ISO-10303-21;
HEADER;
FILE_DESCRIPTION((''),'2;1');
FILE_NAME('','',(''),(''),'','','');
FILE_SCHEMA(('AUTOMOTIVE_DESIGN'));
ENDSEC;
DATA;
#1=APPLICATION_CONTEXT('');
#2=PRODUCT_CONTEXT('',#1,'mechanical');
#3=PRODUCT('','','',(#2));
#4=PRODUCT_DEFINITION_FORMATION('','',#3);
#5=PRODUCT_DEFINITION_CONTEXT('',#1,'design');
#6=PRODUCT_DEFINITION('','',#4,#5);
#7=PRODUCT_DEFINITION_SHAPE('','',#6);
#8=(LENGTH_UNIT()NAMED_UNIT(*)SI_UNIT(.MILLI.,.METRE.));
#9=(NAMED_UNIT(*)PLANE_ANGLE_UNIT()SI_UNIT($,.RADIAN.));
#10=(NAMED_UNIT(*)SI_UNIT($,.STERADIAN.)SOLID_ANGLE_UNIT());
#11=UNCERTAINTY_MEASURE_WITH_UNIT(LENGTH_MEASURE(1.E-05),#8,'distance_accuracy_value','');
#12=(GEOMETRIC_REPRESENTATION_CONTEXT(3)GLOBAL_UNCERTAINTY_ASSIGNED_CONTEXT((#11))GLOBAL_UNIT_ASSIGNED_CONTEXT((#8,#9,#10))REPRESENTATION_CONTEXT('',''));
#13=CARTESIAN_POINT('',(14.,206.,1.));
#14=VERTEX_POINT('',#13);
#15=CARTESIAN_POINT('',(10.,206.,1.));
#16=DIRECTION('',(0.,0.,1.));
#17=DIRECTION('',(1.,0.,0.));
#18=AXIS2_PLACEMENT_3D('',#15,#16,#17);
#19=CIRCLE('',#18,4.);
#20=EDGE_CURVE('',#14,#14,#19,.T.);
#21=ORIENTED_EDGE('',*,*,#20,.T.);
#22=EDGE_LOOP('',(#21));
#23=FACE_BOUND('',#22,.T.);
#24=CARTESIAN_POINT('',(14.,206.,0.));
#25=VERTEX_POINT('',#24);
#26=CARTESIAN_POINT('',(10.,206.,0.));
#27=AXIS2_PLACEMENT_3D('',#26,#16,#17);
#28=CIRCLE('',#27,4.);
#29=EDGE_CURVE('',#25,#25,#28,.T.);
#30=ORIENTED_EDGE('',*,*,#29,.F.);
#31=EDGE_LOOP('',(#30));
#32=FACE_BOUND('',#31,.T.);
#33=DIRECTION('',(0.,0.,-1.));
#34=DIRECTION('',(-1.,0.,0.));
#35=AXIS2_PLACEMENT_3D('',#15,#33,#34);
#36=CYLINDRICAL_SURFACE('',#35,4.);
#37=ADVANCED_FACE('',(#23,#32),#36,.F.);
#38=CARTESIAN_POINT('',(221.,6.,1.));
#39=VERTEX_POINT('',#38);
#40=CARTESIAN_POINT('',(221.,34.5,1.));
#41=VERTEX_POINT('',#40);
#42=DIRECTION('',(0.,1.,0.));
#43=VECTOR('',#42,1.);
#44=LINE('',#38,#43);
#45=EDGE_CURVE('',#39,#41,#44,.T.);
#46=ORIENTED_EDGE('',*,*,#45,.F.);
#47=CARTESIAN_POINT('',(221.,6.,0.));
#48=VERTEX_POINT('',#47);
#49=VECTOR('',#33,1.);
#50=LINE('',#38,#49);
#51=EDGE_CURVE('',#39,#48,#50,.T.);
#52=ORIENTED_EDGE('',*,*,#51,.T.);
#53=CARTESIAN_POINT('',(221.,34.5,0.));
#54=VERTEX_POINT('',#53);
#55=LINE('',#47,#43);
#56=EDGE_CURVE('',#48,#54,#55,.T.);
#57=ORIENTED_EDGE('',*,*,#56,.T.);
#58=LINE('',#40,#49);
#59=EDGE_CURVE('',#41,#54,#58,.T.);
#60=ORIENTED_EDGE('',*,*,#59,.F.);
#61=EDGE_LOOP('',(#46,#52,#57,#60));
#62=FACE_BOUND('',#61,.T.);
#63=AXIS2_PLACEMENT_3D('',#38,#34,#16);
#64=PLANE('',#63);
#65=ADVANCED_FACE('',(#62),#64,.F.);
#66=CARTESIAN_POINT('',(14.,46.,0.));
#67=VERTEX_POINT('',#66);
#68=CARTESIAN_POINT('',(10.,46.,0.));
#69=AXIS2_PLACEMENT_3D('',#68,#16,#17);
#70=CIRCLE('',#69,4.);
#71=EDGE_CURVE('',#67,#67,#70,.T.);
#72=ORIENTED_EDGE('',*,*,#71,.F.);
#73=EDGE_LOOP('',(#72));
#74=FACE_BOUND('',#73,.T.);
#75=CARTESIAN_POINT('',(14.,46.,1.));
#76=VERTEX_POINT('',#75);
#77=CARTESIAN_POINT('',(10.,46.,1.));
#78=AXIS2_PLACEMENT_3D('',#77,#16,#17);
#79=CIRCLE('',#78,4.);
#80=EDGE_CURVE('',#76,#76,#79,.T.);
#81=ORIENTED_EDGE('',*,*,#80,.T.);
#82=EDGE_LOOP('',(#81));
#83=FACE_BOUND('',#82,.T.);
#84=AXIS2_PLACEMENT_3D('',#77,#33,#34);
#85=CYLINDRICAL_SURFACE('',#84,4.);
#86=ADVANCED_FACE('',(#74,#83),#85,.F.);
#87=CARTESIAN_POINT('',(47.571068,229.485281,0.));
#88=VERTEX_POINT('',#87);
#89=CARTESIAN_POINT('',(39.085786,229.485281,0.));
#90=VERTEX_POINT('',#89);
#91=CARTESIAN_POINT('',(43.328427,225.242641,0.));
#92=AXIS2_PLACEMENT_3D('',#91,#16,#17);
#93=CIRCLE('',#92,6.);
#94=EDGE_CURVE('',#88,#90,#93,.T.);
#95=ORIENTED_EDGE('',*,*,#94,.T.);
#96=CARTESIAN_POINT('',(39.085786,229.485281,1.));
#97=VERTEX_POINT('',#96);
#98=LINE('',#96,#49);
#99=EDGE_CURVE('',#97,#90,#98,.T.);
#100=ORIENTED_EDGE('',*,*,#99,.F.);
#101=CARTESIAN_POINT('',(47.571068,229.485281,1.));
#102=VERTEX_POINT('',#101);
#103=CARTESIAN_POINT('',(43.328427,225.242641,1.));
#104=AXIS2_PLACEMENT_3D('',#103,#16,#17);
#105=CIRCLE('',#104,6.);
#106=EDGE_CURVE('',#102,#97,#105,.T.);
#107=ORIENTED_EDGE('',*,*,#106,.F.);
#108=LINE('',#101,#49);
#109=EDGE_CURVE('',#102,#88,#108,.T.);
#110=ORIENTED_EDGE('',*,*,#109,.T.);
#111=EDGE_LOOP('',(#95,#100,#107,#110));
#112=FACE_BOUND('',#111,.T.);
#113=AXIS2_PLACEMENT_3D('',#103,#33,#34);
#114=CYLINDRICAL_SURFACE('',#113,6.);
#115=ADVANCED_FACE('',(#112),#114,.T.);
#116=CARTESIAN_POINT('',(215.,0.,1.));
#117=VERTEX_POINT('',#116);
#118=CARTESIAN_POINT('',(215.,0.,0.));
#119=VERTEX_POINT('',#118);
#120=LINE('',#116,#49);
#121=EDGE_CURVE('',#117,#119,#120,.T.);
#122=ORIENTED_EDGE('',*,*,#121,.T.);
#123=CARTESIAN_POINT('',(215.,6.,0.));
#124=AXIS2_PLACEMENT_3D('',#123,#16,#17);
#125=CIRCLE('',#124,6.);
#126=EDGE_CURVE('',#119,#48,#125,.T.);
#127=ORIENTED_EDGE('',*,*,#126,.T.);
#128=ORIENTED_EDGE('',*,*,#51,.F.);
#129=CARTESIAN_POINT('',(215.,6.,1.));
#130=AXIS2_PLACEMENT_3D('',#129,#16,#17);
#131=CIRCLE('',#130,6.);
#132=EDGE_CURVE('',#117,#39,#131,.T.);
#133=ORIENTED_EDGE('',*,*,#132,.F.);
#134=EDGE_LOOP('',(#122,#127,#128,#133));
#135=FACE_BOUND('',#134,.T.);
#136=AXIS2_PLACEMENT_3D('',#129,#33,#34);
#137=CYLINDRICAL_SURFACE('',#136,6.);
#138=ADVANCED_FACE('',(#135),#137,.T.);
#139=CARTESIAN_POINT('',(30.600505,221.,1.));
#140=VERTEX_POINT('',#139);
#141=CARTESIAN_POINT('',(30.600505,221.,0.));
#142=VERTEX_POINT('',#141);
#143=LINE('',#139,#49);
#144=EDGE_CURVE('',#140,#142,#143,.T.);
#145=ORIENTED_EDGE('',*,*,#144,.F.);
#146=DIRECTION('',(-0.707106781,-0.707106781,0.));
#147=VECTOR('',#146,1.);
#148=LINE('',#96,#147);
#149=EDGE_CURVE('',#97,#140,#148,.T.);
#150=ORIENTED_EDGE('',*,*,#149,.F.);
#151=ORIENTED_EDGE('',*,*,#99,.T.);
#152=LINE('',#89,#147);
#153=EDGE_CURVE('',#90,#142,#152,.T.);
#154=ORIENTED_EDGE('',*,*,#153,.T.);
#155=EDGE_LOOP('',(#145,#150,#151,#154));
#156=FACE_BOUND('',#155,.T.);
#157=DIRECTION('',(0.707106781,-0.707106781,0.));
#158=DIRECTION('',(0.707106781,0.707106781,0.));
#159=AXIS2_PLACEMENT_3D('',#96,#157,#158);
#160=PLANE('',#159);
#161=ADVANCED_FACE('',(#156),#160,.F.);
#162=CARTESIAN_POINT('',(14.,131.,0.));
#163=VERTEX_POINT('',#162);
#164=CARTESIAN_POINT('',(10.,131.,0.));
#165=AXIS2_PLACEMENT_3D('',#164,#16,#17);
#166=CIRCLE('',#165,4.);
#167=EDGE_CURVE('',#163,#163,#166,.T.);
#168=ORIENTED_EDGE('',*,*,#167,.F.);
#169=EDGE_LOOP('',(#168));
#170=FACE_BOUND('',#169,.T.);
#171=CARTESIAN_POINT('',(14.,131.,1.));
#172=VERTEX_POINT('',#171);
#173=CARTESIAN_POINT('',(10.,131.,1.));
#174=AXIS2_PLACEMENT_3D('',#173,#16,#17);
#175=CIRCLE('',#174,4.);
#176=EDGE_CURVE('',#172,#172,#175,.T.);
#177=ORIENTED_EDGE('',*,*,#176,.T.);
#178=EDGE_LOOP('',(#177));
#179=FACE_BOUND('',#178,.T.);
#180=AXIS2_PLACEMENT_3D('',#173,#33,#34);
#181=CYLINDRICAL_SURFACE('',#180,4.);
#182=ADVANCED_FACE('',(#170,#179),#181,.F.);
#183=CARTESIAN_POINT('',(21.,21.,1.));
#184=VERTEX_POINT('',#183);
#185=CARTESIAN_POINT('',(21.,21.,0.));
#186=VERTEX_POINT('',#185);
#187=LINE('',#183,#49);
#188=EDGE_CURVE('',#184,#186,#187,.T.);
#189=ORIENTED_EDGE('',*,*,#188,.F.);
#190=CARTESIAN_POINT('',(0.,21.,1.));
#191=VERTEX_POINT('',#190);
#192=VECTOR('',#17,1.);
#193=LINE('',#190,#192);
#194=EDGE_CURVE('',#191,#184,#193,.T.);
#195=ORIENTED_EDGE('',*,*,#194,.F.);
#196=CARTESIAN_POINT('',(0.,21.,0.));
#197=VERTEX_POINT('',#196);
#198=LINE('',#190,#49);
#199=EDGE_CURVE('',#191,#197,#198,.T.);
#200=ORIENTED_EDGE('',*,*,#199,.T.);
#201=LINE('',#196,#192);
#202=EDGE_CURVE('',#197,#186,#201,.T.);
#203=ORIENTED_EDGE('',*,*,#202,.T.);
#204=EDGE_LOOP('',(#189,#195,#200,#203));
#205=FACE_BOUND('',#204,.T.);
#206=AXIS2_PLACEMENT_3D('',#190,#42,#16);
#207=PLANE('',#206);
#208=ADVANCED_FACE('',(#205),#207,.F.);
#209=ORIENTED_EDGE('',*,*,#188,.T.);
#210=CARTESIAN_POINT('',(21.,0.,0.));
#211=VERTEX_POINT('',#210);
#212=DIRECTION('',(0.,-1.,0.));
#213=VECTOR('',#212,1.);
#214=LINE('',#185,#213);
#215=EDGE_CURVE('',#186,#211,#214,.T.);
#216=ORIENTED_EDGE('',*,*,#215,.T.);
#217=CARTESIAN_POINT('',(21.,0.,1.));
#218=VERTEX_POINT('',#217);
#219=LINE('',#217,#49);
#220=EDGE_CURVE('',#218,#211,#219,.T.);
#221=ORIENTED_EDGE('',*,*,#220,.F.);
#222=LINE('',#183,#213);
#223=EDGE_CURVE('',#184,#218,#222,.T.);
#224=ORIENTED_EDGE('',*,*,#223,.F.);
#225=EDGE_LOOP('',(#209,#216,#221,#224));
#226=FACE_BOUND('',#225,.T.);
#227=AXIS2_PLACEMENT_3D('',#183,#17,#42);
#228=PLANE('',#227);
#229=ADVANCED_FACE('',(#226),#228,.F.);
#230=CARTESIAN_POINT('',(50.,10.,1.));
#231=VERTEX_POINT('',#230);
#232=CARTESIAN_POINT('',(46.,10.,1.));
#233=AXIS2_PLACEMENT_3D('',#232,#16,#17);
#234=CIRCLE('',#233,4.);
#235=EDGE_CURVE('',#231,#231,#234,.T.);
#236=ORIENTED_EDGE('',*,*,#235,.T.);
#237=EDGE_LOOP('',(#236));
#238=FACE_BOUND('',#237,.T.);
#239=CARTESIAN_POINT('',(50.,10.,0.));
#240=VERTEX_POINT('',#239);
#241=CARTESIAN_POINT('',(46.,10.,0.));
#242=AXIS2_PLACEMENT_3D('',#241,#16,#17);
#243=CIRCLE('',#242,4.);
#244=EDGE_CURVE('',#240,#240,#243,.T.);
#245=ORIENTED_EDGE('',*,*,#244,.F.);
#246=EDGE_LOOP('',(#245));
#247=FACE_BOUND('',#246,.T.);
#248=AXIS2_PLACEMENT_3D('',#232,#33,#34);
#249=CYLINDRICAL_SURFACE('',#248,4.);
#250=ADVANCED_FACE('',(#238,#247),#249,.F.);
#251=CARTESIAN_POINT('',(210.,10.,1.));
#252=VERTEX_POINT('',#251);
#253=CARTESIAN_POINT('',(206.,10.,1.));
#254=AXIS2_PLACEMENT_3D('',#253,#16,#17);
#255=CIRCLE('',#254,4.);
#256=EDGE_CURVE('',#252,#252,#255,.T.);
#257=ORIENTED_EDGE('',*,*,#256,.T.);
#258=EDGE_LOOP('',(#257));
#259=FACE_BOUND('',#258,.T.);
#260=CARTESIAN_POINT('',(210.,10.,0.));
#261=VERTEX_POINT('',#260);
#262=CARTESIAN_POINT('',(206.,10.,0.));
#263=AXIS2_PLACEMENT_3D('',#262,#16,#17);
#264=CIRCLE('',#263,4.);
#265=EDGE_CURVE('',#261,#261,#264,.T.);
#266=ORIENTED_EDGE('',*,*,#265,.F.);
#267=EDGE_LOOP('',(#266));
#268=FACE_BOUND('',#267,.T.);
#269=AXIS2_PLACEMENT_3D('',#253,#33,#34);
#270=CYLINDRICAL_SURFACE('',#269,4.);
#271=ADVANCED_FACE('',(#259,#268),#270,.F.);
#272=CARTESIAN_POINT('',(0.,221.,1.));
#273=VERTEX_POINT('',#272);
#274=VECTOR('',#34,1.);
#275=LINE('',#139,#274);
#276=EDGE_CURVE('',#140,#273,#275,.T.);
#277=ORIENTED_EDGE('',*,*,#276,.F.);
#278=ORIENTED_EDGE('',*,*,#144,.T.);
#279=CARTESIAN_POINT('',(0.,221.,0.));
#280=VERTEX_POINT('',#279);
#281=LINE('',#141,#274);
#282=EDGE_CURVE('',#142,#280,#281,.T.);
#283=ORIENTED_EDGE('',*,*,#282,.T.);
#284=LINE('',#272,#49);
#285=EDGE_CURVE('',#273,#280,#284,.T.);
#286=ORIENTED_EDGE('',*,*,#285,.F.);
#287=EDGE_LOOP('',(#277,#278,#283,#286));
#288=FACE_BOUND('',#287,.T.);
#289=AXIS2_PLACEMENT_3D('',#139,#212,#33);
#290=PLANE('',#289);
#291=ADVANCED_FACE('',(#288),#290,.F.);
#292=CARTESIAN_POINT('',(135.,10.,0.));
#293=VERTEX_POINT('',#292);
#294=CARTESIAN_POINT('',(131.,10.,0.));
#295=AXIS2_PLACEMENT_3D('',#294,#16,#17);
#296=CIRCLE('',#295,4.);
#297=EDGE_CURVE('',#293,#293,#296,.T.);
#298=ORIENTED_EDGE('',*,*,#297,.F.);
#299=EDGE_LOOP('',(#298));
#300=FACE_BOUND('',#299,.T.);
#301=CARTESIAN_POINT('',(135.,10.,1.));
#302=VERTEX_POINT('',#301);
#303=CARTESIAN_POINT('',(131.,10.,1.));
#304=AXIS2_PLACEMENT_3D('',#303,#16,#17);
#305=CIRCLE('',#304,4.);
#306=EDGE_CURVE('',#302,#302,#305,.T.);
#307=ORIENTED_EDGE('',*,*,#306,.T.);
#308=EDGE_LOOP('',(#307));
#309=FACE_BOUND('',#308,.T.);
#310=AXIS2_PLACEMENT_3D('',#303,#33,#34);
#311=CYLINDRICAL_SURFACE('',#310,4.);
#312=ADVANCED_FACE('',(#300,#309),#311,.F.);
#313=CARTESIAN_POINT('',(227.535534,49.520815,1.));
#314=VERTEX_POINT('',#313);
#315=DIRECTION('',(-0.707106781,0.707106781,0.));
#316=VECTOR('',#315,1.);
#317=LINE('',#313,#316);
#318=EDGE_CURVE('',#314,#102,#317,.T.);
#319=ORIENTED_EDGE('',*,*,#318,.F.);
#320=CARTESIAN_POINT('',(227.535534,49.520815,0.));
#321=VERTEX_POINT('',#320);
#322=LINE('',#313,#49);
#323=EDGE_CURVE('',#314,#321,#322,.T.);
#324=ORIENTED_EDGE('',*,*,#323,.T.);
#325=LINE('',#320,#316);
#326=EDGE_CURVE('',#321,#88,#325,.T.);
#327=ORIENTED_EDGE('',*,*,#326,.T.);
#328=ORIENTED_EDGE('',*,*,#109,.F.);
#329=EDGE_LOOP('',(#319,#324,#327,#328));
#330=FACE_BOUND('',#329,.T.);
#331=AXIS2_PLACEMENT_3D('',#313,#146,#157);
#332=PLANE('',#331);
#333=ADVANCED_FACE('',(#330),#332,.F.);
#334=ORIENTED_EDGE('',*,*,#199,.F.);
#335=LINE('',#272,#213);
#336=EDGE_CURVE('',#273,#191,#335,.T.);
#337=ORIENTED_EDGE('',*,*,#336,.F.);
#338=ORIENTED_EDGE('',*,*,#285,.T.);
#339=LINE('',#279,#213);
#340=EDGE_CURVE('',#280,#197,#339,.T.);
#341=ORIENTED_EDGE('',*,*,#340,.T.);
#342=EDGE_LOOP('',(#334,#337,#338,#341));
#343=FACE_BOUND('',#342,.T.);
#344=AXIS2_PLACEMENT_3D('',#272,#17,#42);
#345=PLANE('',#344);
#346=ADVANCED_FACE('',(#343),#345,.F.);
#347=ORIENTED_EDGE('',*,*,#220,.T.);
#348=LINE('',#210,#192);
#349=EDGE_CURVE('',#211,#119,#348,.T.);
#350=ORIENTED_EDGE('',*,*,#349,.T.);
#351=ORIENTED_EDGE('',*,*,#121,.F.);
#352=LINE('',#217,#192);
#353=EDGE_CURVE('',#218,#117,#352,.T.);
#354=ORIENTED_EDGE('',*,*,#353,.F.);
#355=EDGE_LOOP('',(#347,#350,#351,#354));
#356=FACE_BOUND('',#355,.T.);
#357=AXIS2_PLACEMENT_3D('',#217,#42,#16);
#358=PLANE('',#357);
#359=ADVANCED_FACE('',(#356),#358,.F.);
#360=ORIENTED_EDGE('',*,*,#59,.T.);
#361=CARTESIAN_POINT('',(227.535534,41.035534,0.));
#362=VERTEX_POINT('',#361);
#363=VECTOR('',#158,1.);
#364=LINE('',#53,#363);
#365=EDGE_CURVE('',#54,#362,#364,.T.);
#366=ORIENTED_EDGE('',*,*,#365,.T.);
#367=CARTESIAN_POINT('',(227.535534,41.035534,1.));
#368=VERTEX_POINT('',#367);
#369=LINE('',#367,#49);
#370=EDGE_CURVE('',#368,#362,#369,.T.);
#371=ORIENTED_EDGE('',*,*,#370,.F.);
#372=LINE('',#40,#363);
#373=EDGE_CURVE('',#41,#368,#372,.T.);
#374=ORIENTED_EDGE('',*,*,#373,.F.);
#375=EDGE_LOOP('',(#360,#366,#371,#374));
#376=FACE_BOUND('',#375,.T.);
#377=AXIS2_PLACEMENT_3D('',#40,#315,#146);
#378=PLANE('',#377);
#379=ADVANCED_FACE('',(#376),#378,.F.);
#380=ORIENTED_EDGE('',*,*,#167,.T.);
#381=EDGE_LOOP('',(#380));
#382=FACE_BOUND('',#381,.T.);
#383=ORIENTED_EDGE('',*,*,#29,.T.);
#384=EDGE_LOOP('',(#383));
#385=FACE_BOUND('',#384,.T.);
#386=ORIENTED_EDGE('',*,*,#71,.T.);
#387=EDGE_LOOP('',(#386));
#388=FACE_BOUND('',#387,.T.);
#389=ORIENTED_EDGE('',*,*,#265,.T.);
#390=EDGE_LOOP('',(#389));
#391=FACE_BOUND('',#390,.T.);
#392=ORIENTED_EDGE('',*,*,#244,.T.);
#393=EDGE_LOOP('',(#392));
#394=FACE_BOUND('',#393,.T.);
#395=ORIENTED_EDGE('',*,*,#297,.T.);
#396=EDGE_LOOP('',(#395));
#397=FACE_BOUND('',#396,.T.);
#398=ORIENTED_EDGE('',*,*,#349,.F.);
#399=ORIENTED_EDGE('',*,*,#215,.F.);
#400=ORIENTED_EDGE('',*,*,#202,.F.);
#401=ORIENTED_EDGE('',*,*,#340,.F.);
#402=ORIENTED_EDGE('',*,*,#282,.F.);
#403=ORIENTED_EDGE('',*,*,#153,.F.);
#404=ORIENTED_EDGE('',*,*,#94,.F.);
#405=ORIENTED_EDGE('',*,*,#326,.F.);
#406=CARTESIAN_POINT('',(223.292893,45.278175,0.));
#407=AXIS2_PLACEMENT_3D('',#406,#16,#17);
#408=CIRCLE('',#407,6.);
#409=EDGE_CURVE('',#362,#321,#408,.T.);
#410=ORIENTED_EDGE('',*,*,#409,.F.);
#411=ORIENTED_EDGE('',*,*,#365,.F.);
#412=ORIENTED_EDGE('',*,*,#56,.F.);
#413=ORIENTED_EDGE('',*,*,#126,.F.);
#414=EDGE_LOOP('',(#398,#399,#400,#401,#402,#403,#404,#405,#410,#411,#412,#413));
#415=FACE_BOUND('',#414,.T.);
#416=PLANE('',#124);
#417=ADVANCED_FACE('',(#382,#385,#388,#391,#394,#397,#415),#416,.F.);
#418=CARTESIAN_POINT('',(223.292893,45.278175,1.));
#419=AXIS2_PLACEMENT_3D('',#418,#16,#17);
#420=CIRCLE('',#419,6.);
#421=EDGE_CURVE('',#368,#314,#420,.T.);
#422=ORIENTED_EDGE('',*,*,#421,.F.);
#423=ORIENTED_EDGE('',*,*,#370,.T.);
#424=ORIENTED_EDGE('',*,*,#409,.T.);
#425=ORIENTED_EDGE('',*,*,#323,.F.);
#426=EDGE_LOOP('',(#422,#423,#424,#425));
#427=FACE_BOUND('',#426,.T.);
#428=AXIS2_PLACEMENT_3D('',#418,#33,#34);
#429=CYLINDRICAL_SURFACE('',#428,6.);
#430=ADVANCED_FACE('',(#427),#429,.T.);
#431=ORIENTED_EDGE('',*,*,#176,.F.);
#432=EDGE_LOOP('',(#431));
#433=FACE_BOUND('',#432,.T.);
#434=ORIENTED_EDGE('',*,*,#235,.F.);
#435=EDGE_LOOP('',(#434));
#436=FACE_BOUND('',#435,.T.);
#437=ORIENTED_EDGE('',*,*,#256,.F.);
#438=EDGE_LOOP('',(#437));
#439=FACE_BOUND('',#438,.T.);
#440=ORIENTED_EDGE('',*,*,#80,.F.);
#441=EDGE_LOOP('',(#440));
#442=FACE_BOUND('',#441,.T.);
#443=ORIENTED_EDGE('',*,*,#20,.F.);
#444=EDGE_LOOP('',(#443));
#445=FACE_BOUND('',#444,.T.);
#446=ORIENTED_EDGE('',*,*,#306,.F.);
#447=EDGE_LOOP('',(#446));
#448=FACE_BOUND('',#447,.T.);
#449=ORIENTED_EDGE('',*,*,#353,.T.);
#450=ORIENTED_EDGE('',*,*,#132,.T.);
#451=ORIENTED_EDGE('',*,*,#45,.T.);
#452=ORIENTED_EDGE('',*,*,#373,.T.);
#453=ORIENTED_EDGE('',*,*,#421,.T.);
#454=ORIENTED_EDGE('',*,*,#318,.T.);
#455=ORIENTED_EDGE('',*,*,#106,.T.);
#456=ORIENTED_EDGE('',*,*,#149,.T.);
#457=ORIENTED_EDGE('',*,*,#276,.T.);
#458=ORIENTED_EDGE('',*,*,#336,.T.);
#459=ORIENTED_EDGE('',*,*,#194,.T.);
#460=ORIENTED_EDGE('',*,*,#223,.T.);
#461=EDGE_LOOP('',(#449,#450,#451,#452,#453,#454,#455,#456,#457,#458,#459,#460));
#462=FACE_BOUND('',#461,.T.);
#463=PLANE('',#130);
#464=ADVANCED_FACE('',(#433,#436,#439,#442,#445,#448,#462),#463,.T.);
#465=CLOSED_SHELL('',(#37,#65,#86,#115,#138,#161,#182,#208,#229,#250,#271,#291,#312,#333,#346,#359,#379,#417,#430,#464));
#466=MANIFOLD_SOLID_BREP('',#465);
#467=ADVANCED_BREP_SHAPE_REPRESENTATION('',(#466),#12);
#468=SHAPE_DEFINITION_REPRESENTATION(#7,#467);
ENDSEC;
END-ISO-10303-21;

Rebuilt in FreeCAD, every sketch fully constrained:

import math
import FreeCAD as App
import Part
import Sketcher
from FreeCAD import Vector

doc = App.newDocument("Part")
body = doc.addObject("PartDesign::Body", "Body")

# Sketch on XY plane
sketch1 = body.newObject("Sketcher::SketchObject", "Sketch")
sketch1.AttachmentSupport = (doc.getObject("XY_Plane"), [""])
sketch1.MapMode = "FlatFace"
sketch1.addGeometry([
    Part.LineSegment(Vector(0, 21, 0), Vector(21, 21, 0)),  # 0
    Part.LineSegment(Vector(21, 21, 0), Vector(21, 0, 0)),  # 1
    Part.LineSegment(Vector(21, 0, 0), Vector(215, 0, 0)),  # 2
    Part.ArcOfCircle(Part.Circle(Vector(215, 6, 0), Vector(0, 0, 1), 6), math.radians(-90), math.radians(0)),  # 3
    Part.LineSegment(Vector(221, 6, 0), Vector(221, 34.5, 0)),  # 4
    Part.LineSegment(Vector(221, 34.5, 0), Vector(227.5, 41, 0)),  # 5
    Part.ArcOfCircle(Part.Circle(Vector(223.3, 45.3, 0), Vector(0, 0, 1), 6), math.radians(-45), math.radians(45)),  # 6
    Part.LineSegment(Vector(227.5, 49.5, 0), Vector(47.6, 229.5, 0)),  # 7
    Part.ArcOfCircle(Part.Circle(Vector(43.3, 225.2, 0), Vector(0, 0, 1), 6), math.radians(45), math.radians(135)),  # 8
    Part.LineSegment(Vector(39.1, 229.5, 0), Vector(30.6, 221, 0)),  # 9
    Part.LineSegment(Vector(30.6, 221, 0), Vector(0, 221, 0)),  # 10
    Part.LineSegment(Vector(0, 221, 0), Vector(0, 21, 0)),  # 11
    Part.Circle(Vector(46, 10, 0), Vector(0, 0, 1), 4),  # 12
    Part.Circle(Vector(10, 46, 0), Vector(0, 0, 1), 4),  # 13
    Part.Circle(Vector(131, 10, 0), Vector(0, 0, 1), 4),  # 14
    Part.Circle(Vector(206, 10, 0), Vector(0, 0, 1), 4),  # 15
    Part.Circle(Vector(10, 131, 0), Vector(0, 0, 1), 4),  # 16
    Part.Circle(Vector(10, 206, 0), Vector(0, 0, 1), 4),  # 17
], False)
sketch1.addConstraint([
    Sketcher.Constraint("Coincident", 0, 2, 1, 1),
    Sketcher.Constraint("Coincident", 1, 2, 2, 1),
    Sketcher.Constraint("Tangent", 2, 2, 3, 1),
    Sketcher.Constraint("Tangent", 3, 2, 4, 1),
    Sketcher.Constraint("Coincident", 4, 2, 5, 1),
    Sketcher.Constraint("Tangent", 5, 2, 6, 1),
    Sketcher.Constraint("Tangent", 6, 2, 7, 1),
    Sketcher.Constraint("Tangent", 7, 2, 8, 1),
    Sketcher.Constraint("Tangent", 8, 2, 9, 1),
    Sketcher.Constraint("Coincident", 9, 2, 10, 1),
    Sketcher.Constraint("Coincident", 10, 2, 11, 1),
    Sketcher.Constraint("Coincident", 11, 2, 0, 1),
    Sketcher.Constraint("Horizontal", 0),
    Sketcher.Constraint("Vertical", 1),
    Sketcher.Constraint("Horizontal", 2),
    Sketcher.Constraint("Vertical", 4),
    Sketcher.Constraint("Horizontal", 10),
    Sketcher.Constraint("Vertical", 11),
    Sketcher.Constraint("Equal", 3, 6),
    Sketcher.Constraint("Equal", 6, 8),
    Sketcher.Constraint("Equal", 12, 13),
    Sketcher.Constraint("Equal", 13, 14),
    Sketcher.Constraint("Equal", 14, 15),
    Sketcher.Constraint("Equal", 15, 16),
    Sketcher.Constraint("Equal", 16, 17),
    Sketcher.Constraint("PointOnObject", 1, 2, -1),
    Sketcher.Constraint("PointOnObject", 10, 2, -2),
    Sketcher.Constraint("Perpendicular", 5, 7),
    Sketcher.Constraint("Perpendicular", 7, 9),
    Sketcher.Constraint("Horizontal", 12, 3, 14, 3),
    Sketcher.Constraint("Horizontal", 14, 3, 15, 3),
    Sketcher.Constraint("Horizontal", 7, 2, 8, 2),
    Sketcher.Constraint("Vertical", 13, 3, 16, 3),
    Sketcher.Constraint("Vertical", 16, 3, 17, 3),
    Sketcher.Constraint("Equal", 0, 1),
    Sketcher.Constraint("Diameter", 12, 8.0),
    Sketcher.Constraint("Radius", 3, 6.0),
    Sketcher.Constraint("DistanceX", 0, 1, 0, 2, 21.0),
    Sketcher.Constraint("DistanceX", 2, 1, 2, 2, 194.0),
    Sketcher.Constraint("DistanceY", 11, 2, 11, 1, 200.0),
    Sketcher.Constraint("Distance", 9, 12.0),
    Sketcher.Constraint("DistanceY", 4, 1, 4, 2, 28.5),
    Sketcher.Constraint("DistanceX", -1, 1, 12, 3, 46.0),
    Sketcher.Constraint("DistanceY", -1, 1, 12, 3, 10.0),
    Sketcher.Constraint("DistanceX", -1, 1, 13, 3, 10.0),
    Sketcher.Constraint("DistanceY", -1, 1, 13, 3, 46.0),
    Sketcher.Constraint("DistanceX", -1, 1, 14, 3, 131.0),
    Sketcher.Constraint("DistanceX", -1, 1, 15, 3, 206.0),
    Sketcher.Constraint("DistanceY", -1, 1, 16, 3, 131.0),
    Sketcher.Constraint("DistanceY", -1, 1, 17, 3, 206.0),
    Sketcher.Constraint("Distance", 5, 9.242641),
])
pad1 = body.newObject("PartDesign::Pad", "Pad")
pad1.Profile = sketch1
pad1.Length = 1

doc.recompute()
